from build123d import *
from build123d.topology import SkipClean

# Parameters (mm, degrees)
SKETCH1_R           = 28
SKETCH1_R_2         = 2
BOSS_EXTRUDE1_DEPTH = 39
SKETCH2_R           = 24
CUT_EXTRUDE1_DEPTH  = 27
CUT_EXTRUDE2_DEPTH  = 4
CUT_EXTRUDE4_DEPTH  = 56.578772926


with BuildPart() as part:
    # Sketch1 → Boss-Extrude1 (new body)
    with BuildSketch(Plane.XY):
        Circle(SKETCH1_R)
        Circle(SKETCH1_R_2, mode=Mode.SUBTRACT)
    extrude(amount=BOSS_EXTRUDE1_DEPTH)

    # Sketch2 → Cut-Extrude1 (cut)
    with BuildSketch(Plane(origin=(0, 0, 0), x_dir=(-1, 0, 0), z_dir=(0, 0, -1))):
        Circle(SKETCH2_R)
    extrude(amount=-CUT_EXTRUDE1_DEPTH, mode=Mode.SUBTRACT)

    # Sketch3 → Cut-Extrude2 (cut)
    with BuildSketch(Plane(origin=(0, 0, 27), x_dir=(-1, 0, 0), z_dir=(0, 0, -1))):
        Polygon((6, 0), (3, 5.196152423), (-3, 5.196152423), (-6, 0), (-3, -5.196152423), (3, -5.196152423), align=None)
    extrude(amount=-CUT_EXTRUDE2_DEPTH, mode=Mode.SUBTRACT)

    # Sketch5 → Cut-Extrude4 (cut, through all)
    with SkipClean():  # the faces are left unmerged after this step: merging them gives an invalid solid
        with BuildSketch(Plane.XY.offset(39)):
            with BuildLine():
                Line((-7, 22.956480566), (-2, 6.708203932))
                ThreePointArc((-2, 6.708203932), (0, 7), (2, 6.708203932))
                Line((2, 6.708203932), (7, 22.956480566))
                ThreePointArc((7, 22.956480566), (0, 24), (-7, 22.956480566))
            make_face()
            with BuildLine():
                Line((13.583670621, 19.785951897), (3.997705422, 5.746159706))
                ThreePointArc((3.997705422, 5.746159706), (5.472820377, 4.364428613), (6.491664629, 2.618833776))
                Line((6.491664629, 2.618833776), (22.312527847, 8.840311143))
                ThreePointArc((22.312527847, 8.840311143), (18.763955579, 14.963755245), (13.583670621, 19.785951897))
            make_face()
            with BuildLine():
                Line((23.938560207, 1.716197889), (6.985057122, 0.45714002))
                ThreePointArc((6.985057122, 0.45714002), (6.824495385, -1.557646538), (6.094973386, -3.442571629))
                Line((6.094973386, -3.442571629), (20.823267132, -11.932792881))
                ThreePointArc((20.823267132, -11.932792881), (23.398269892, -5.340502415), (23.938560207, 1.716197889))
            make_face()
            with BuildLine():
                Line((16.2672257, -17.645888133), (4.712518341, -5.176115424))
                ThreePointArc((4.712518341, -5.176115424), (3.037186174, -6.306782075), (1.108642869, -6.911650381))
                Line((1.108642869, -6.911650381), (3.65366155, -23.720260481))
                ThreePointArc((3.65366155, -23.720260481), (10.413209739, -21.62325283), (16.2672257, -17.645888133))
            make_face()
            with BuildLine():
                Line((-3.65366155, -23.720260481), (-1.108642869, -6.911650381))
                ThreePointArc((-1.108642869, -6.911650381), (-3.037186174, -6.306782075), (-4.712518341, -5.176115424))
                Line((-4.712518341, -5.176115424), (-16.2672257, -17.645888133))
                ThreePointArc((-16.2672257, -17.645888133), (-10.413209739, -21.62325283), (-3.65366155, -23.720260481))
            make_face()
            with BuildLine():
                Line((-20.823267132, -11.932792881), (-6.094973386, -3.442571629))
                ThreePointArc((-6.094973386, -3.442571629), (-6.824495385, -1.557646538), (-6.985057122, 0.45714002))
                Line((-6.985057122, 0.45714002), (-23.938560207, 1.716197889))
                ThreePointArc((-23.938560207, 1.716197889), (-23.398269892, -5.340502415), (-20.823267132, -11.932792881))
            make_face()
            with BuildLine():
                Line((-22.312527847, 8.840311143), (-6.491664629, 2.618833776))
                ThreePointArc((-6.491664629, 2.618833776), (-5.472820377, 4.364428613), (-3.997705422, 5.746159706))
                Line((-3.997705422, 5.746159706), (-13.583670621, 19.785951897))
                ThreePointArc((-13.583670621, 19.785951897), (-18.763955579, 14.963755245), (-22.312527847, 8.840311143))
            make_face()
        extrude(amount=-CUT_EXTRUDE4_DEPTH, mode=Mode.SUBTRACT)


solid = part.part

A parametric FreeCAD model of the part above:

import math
import FreeCAD as App
import Part
import Sketcher
from FreeCAD import Vector
Q = App.Units.Quantity


def add_polygon(sketch, points):
    """Adds a closed chain of lines whose ends are joined by coincident constraints."""
    first, n = sketch.GeometryCount, len(points)
    for a, b in zip(points, points[1:] + points[:1]):
        sketch.addGeometry(Part.LineSegment(App.Vector(*a, 0), App.Vector(*b, 0)), False)
    for i in range(n):
        sketch.addConstraint(Sketcher.Constraint("Coincident", first + i, 2, first + (i + 1) % n, 1))

doc = App.newDocument("Part")
body = doc.addObject("PartDesign::Body", "Body")

# Sketch on XY plane
sketch1 = doc.addObject("Sketcher::SketchObject", "Sketch")
body.addObject(sketch1)
sketch1.AttachmentSupport = (doc.XY_Plane, [""])
sketch1.MapMode = "FlatFace"
sketch1.addGeometry([
    Part.Circle(Vector(0, 0, 0), Vector(0, 0, 1), 28),
    Part.Circle(Vector(0, 0, 0), Vector(0, 0, 1), 2),
], False)
sketch1.addConstraint([
    Sketcher.Constraint("Coincident", 0, 3, -1, 1),
    Sketcher.Constraint("Coincident", 1, 3, -1, 1),
    Sketcher.Constraint("Diameter", 0, Q("56 mm")),
    Sketcher.Constraint("Diameter", 1, Q("4 mm")),
])
pad1 = doc.addObject("PartDesign::Pad", "Pad")
body.addObject(pad1)
pad1.Profile = sketch1
pad1.Length = 39

# Sketch on XY plane
sketch2 = doc.addObject("Sketcher::SketchObject", "Sketch001")
body.addObject(sketch2)
sketch2.AttachmentSupport = (doc.XY_Plane, [""])
sketch2.MapMode = "FlatFace"
sketch2.addGeometry(Part.Circle(Vector(0, 0, 0), Vector(0, 0, 1), 24), False)
sketch2.addConstraint([
    Sketcher.Constraint("Coincident", 0, 3, -1, 1),
    Sketcher.Constraint("Diameter", 0, Q("48 mm")),
])
pocket1 = doc.addObject("PartDesign::Pocket", "Pocket")
body.addObject(pocket1)
pocket1.Profile = sketch2
pocket1.Length = 27
pocket1.Reversed = True

# Sketch on XY plane
sketch3 = doc.addObject("Sketcher::SketchObject", "Sketch002")
body.addObject(sketch3)
sketch3.AttachmentSupport = (doc.XY_Plane, [""])
sketch3.MapMode = "FlatFace"
sketch3.AttachmentOffset = App.Placement(Vector(0, 0, 27), App.Rotation())
add_polygon(sketch3, [(-6, 0), (-3, 5.196152), (3, 5.196152), (6, 0), (3, -5.196152), (-3, -5.196152)])  # lines 0-5
sketch3.addConstraint([
    Sketcher.Constraint("Horizontal", 1),
    Sketcher.Constraint("Horizontal", 4),
    Sketcher.Constraint("Symmetric", 0, 2, 3, 2, -1, 1),
    Sketcher.Constraint("Symmetric", 2, 2, 5, 2, -1, 1),
    Sketcher.Constraint("PointOnObject", 2, 2, -1),
    Sketcher.Constraint("Parallel", 2, 5),
    Sketcher.Constraint("Vertical", 1, 2, 3, 2),
    Sketcher.Constraint("DistanceX", 1, 1, 1, 2, Q("6 mm")),
    Sketcher.Constraint("Angle", 0, Q("60 deg")),
    Sketcher.Constraint("Distance", 0, Q("6 mm")),
])
pocket2 = doc.addObject("PartDesign::Pocket", "Pocket001")
body.addObject(pocket2)
pocket2.Profile = sketch3
pocket2.Length = 4
pocket2.Reversed = True

# Sketch on XY plane
sketch4 = doc.addObject("Sketcher::SketchObject", "Sketch003")
body.addObject(sketch4)
sketch4.AttachmentSupport = (doc.XY_Plane, [""])
sketch4.MapMode = "FlatFace"
sketch4.AttachmentOffset = App.Placement(Vector(0, 0, 39), App.Rotation())
sketch4.addGeometry([
    Part.LineSegment(Vector(-7, 22.956481, 0), Vector(-2, 6.708204, 0)),  # 0
    Part.ArcOfCircle(Part.Circle(Vector(0, 0, 0), Vector(0, 0, 1), 7), math.radians(73.39845), math.radians(106.60155)),  # 1
    Part.LineSegment(Vector(2, 6.708204, 0), Vector(7, 22.956481, 0)),  # 2
    Part.ArcOfCircle(Part.Circle(Vector(0, 0, 0), Vector(0, 0, 1), 24), math.radians(73.042237), math.radians(106.957763)),  # 3
    Part.LineSegment(Vector(13.583671, 19.785952, 0), Vector(3.997705, 5.74616, 0)),  # 4
    Part.ArcOfCircle(Part.Circle(Vector(0, 0, 0), Vector(0, 0, 1), 7), math.radians(21.969879), math.radians(55.172978)),  # 5
    Part.LineSegment(Vector(6.491665, 2.618834, 0), Vector(22.312528, 8.840311, 0)),  # 6
    Part.ArcOfCircle(Part.Circle(Vector(0, 0, 0), Vector(0, 0, 1), 24), math.radians(21.613665), math.radians(55.529192)),  # 7
    Part.LineSegment(Vector(23.93856, 1.716198, 0), Vector(6.985057, 0.45714, 0)),  # 8
    Part.ArcOfCircle(Part.Circle(Vector(0, 0, 0), Vector(0, 0, 1), 7), math.radians(-29.458692), math.radians(3.744407)),  # 9
    Part.LineSegment(Vector(6.094973, -3.442572, 0), Vector(20.823267, -11.932793, 0)),  # 10
    Part.ArcOfCircle(Part.Circle(Vector(0, 0, 0), Vector(0, 0, 1), 24), math.radians(-29.814906), math.radians(4.10062)),  # 11
    Part.LineSegment(Vector(16.267226, -17.645888, 0), Vector(4.712518, -5.176115, 0)),  # 12
    Part.ArcOfCircle(Part.Circle(Vector(0, 0, 0), Vector(0, 0, 1), 7), math.radians(-80.887264), math.radians(-47.684165)),  # 13
    Part.LineSegment(Vector(1.108643, -6.91165, 0), Vector(3.653662, -23.72026, 0)),  # 14
    Part.ArcOfCircle(Part.Circle(Vector(0, 0, 0), Vector(0, 0, 1), 24), math.radians(-81.243478), math.radians(-47.327951)),  # 15
    Part.LineSegment(Vector(-3.653662, -23.72026, 0), Vector(-1.108643, -6.91165, 0)),  # 16
    Part.ArcOfCircle(Part.Circle(Vector(0, 0, 0), Vector(0, 0, 1), 7), math.radians(-132.315835), math.radians(-99.112736)),  # 17
    Part.LineSegment(Vector(-4.712518, -5.176115, 0), Vector(-16.267226, -17.645888, 0)),  # 18
    Part.ArcOfCircle(Part.Circle(Vector(0, 0, 0), Vector(0, 0, 1), 24), math.radians(-132.672049), math.radians(-98.756522)),  # 19
    Part.LineSegment(Vector(-20.823267, -11.932793, 0), Vector(-6.094973, -3.442572, 0)),  # 20
    Part.ArcOfCircle(Part.Circle(Vector(0, 0, 0), Vector(0, 0, 1), 7), math.radians(176.255593), math.radians(209.458692)),  # 21
    Part.LineSegment(Vector(-6.985057, 0.45714, 0), Vector(-23.93856, 1.716198, 0)),  # 22
    Part.ArcOfCircle(Part.Circle(Vector(0, 0, 0), Vector(0, 0, 1), 24), math.radians(175.89938), math.radians(209.814906)),  # 23
    Part.LineSegment(Vector(-22.312528, 8.840311, 0), Vector(-6.491665, 2.618834, 0)),  # 24
    Part.ArcOfCircle(Part.Circle(Vector(0, 0, 0), Vector(0, 0, 1), 7), math.radians(124.827022), math.radians(158.030121)),  # 25
    Part.LineSegment(Vector(-3.997705, 5.74616, 0), Vector(-13.583671, 19.785952, 0)),  # 26
    Part.ArcOfCircle(Part.Circle(Vector(0, 0, 0), Vector(0, 0, 1), 24), math.radians(124.470808), math.radians(158.386335)),  # 27
], False)
sketch4.addConstraint([
    Sketcher.Constraint("Coincident", 0, 2, 1, 2),
    Sketcher.Constraint("Coincident", 1, 1, 2, 1),
    Sketcher.Constraint("Coincident", 2, 2, 3, 1),
    Sketcher.Constraint("Coincident", 3, 2, 0, 1),
    Sketcher.Constraint("Coincident", 4, 2, 5, 2),
    Sketcher.Constraint("Coincident", 5, 1, 6, 1),
    Sketcher.Constraint("Coincident", 6, 2, 7, 1),
    Sketcher.Constraint("Coincident", 7, 2, 4, 1),
    Sketcher.Constraint("Coincident", 8, 2, 9, 2),
    Sketcher.Constraint("Coincident", 9, 1, 10, 1),
    Sketcher.Constraint("Coincident", 10, 2, 11, 1),
    Sketcher.Constraint("Coincident", 11, 2, 8, 1),
    Sketcher.Constraint("Coincident", 12, 2, 13, 2),
    Sketcher.Constraint("Coincident", 13, 1, 14, 1),
    Sketcher.Constraint("Coincident", 14, 2, 15, 1),
    Sketcher.Constraint("Coincident", 15, 2, 12, 1),
    Sketcher.Constraint("Coincident", 16, 2, 17, 2),
    Sketcher.Constraint("Coincident", 17, 1, 18, 1),
    Sketcher.Constraint("Coincident", 18, 2, 19, 1),
    Sketcher.Constraint("Coincident", 19, 2, 16, 1),
    Sketcher.Constraint("Coincident", 20, 2, 21, 2),
    Sketcher.Constraint("Coincident", 21, 1, 22, 1),
    Sketcher.Constraint("Coincident", 22, 2, 23, 1),
    Sketcher.Constraint("Coincident", 23, 2, 20, 1),
    Sketcher.Constraint("Coincident", 24, 2, 25, 2),
    Sketcher.Constraint("Coincident", 25, 1, 26, 1),
    Sketcher.Constraint("Coincident", 26, 2, 27, 1),
    Sketcher.Constraint("Coincident", 27, 2, 24, 1),
    Sketcher.Constraint("Coincident", 1, 3, -1, 1),
    Sketcher.Constraint("Coincident", 3, 3, -1, 1),
    Sketcher.Constraint("Coincident", 5, 3, -1, 1),
    Sketcher.Constraint("Coincident", 7, 3, -1, 1),
    Sketcher.Constraint("Coincident", 9, 3, -1, 1),
    Sketcher.Constraint("Coincident", 11, 3, -1, 1),
    Sketcher.Constraint("Coincident", 13, 3, -1, 1),
    Sketcher.Constraint("Coincident", 15, 3, -1, 1),
    Sketcher.Constraint("Coincident", 17, 3, -1, 1),
    Sketcher.Constraint("Coincident", 19, 3, -1, 1),
    Sketcher.Constraint("Coincident", 21, 3, -1, 1),
    Sketcher.Constraint("Coincident", 23, 3, -1, 1),
    Sketcher.Constraint("Coincident", 25, 3, -1, 1),
    Sketcher.Constraint("Coincident", 27, 3, -1, 1),
    Sketcher.Constraint("Equal", 1, 5),
    Sketcher.Constraint("Equal", 3, 7),
    Sketcher.Constraint("Equal", 5, 9),
    Sketcher.Constraint("Equal", 7, 11),
    Sketcher.Constraint("Equal", 9, 13),
    Sketcher.Constraint("Equal", 11, 15),
    Sketcher.Constraint("Equal", 13, 17),
    Sketcher.Constraint("Equal", 15, 19),
    Sketcher.Constraint("Equal", 17, 21),
    Sketcher.Constraint("Equal", 19, 23),
    Sketcher.Constraint("Equal", 21, 25),
    Sketcher.Constraint("Equal", 23, 27),
    Sketcher.Constraint("Horizontal", 0, 2, 1, 1),
    Sketcher.Constraint("Horizontal", 2, 2, 3, 2),
    Sketcher.Constraint("Horizontal", 13, 1, 16, 2),
    Sketcher.Constraint("Horizontal", 12, 2, 17, 1),
    Sketcher.Constraint("Horizontal", 15, 2, 18, 2),
    Sketcher.Constraint("Horizontal", 14, 2, 19, 2),
    Sketcher.Constraint("Horizontal", 9, 1, 20, 2),
    Sketcher.Constraint("Horizontal", 8, 2, 21, 1),
    Sketcher.Constraint("Horizontal", 11, 2, 22, 2),
    Sketcher.Constraint("Horizontal", 10, 2, 23, 2),
    Sketcher.Constraint("Horizontal", 5, 1, 24, 2),
    Sketcher.Constraint("Horizontal", 4, 2, 25, 1),
    Sketcher.Constraint("Horizontal", 7, 2, 26, 2),
    Sketcher.Constraint("Horizontal", 6, 2, 27, 2),
    Sketcher.Constraint("Equal", 2, 4),
    Sketcher.Constraint("Equal", 4, 6),
    Sketcher.Constraint("Equal", 6, 8),
    Sketcher.Constraint("Equal", 8, 10),
    Sketcher.Constraint("Equal", 10, 12),
    Sketcher.Constraint("Equal", 12, 14),
    Sketcher.Constraint("Radius", 1, Q("7 mm")),
    Sketcher.Constraint("Radius", 3, Q("24 mm")),
    Sketcher.Constraint("DistanceX", 0, 2, -1, 1, Q("2 mm")),
    Sketcher.Constraint("DistanceX", -1, 1, 2, 2, Q("7 mm")),
    Sketcher.Constraint("DistanceY", -1, 1, 4, 2, Q("5.74616 mm")),
    Sketcher.Constraint("DistanceY", -1, 1, 6, 2, Q("8.840311 mm")),
    Sketcher.Constraint("DistanceY", -1, 1, 8, 2, Q("0.45714 mm")),
    Sketcher.Constraint("DistanceY", 9, 1, -1, 1, Q("3.442572 mm")),
    Sketcher.Constraint("DistanceX", -1, 1, 12, 2, Q("4.712518 mm")),
    Sketcher.Constraint("DistanceY", 13, 1, -1, 1, Q("6.91165 mm")),
])
pocket3 = doc.addObject("PartDesign::Pocket", "Pocket002")
body.addObject(pocket3)
pocket3.Profile = sketch4
pocket3.Type = "ThroughAll"

doc.recompute()
